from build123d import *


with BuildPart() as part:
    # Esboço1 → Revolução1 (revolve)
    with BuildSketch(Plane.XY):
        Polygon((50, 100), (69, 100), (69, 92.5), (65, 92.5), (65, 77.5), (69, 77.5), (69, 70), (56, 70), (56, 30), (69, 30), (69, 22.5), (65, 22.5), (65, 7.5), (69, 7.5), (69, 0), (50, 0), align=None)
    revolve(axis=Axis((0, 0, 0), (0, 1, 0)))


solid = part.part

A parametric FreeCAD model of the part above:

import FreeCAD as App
import Part
import Sketcher

V = App.Vector
Q = App.Units.Quantity

doc = App.newDocument("Part")
body = doc.addObject("PartDesign::Body", "Body")

sketch1 = body.newObject("Sketcher::SketchObject", "Sketch")
sketch1.AttachmentSupport = (doc.getObject("XY_Plane"), [""])
sketch1.MapMode = "FlatFace"
sketch1.addGeometry(Part.LineSegment(V(69, 100, 0), V(50, 100, 0)), False)
sketch1.addGeometry(Part.LineSegment(V(50, 100, 0), V(50, 0, 0)), False)
sketch1.addGeometry(Part.LineSegment(V(50, 0, 0), V(69, 0, 0)), False)
sketch1.addGeometry(Part.LineSegment(V(69, 0, 0), V(69, 7.5, 0)), False)
sketch1.addGeometry(Part.LineSegment(V(69, 7.5, 0), V(65, 7.5, 0)), False)
sketch1.addGeometry(Part.LineSegment(V(65, 7.5, 0), V(65, 22.5, 0)), False)
sketch1.addGeometry(Part.LineSegment(V(65, 22.5, 0), V(69, 22.5, 0)), False)
sketch1.addGeometry(Part.LineSegment(V(69, 22.5, 0), V(69, 30, 0)), False)
sketch1.addGeometry(Part.LineSegment(V(69, 30, 0), V(56, 30, 0)), False)
sketch1.addGeometry(Part.LineSegment(V(56, 30, 0), V(56, 70, 0)), False)
sketch1.addGeometry(Part.LineSegment(V(56, 70, 0), V(69, 70, 0)), False)
sketch1.addGeometry(Part.LineSegment(V(69, 70, 0), V(69, 77.5, 0)), False)
sketch1.addGeometry(Part.LineSegment(V(69, 77.5, 0), V(65, 77.5, 0)), False)
sketch1.addGeometry(Part.LineSegment(V(65, 77.5, 0), V(65, 92.5, 0)), False)
sketch1.addGeometry(Part.LineSegment(V(65, 92.5, 0), V(69, 92.5, 0)), False)
sketch1.addGeometry(Part.LineSegment(V(69, 92.5, 0), V(69, 100, 0)), False)
sketch1.addConstraint(Sketcher.Constraint("Coincident", 0, 2, 1, 1))
sketch1.addConstraint(Sketcher.Constraint("Coincident", 1, 2, 2, 1))
sketch1.addConstraint(Sketcher.Constraint("Coincident", 2, 2, 3, 1))
sketch1.addConstraint(Sketcher.Constraint("Coincident", 3, 2, 4, 1))
sketch1.addConstraint(Sketcher.Constraint("Coincident", 4, 2, 5, 1))
sketch1.addConstraint(Sketcher.Constraint("Coincident", 5, 2, 6, 1))
sketch1.addConstraint(Sketcher.Constraint("Coincident", 6, 2, 7, 1))
sketch1.addConstraint(Sketcher.Constraint("Coincident", 7, 2, 8, 1))
sketch1.addConstraint(Sketcher.Constraint("Coincident", 8, 2, 9, 1))
sketch1.addConstraint(Sketcher.Constraint("Coincident", 9, 2, 10, 1))
sketch1.addConstraint(Sketcher.Constraint("Coincident", 10, 2, 11, 1))
sketch1.addConstraint(Sketcher.Constraint("Coincident", 11, 2, 12, 1))
sketch1.addConstraint(Sketcher.Constraint("Coincident", 12, 2, 13, 1))
sketch1.addConstraint(Sketcher.Constraint("Coincident", 13, 2, 14, 1))
sketch1.addConstraint(Sketcher.Constraint("Coincident", 14, 2, 15, 1))
sketch1.addConstraint(Sketcher.Constraint("Coincident", 15, 2, 0, 1))
sketch1.addConstraint(Sketcher.Constraint("Horizontal", 0))
sketch1.addConstraint(Sketcher.Constraint("Vertical", 1))
sketch1.addConstraint(Sketcher.Constraint("Horizontal", 2))
sketch1.addConstraint(Sketcher.Constraint("Vertical", 3))
sketch1.addConstraint(Sketcher.Constraint("Horizontal", 4))
sketch1.addConstraint(Sketcher.Constraint("Vertical", 5))
sketch1.addConstraint(Sketcher.Constraint("Horizontal", 6))
sketch1.addConstraint(Sketcher.Constraint("Vertical", 7))
sketch1.addConstraint(Sketcher.Constraint("Horizontal", 8))
sketch1.addConstraint(Sketcher.Constraint("Vertical", 9))
sketch1.addConstraint(Sketcher.Constraint("Horizontal", 10))
sketch1.addConstraint(Sketcher.Constraint("Vertical", 11))
sketch1.addConstraint(Sketcher.Constraint("Horizontal", 12))
sketch1.addConstraint(Sketcher.Constraint("Vertical", 13))
sketch1.addConstraint(Sketcher.Constraint("Horizontal", 14))
sketch1.addConstraint(Sketcher.Constraint("Vertical", 15))
sketch1.addConstraint(Sketcher.Constraint("PointOnObject", 1, 2, -1))
sketch1.addConstraint(Sketcher.Constraint("Vertical", 3, 2, 6, 2))
sketch1.addConstraint(Sketcher.Constraint("Vertical", 7, 2, 10, 2))
sketch1.addConstraint(Sketcher.Constraint("Vertical", 5, 2, 12, 2))
sketch1.addConstraint(Sketcher.Constraint("Vertical", 11, 2, 14, 2))
sketch1.addConstraint(Sketcher.Constraint("Equal", 3, 7))
sketch1.addConstraint(Sketcher.Constraint("Equal", 7, 11))
sketch1.addConstraint(Sketcher.Constraint("Equal", 5, 13))
sketch1.addConstraint(Sketcher.Constraint("Equal", 11, 15))
sketch1.addConstraint(Sketcher.Constraint("DistanceX", 0, 2, 0, 1, Q("19 mm")))
sketch1.addConstraint(Sketcher.Constraint("DistanceX", 4, 2, 4, 1, Q("4 mm")))
sketch1.addConstraint(Sketcher.Constraint("DistanceX", 8, 2, 8, 1, Q("13 mm")))
sketch1.addConstraint(Sketcher.Constraint("DistanceY", 1, 2, 1, 1, Q("100 mm")))
sketch1.addConstraint(Sketcher.Constraint("DistanceY", 5, 1, 5, 2, Q("15 mm")))
sketch1.addConstraint(Sketcher.Constraint("DistanceY", 9, 1, 9, 2, Q("40 mm")))
sketch1.addConstraint(Sketcher.Constraint("DistanceX", -1, 1, 0, 2, Q("50 mm")))
revolution = body.newObject("PartDesign::Revolution", "Revolution")
revolution.Profile = sketch1
revolution.ReferenceAxis = (sketch1, ["V_Axis"])
revolution.Angle = 360

doc.recompute()
